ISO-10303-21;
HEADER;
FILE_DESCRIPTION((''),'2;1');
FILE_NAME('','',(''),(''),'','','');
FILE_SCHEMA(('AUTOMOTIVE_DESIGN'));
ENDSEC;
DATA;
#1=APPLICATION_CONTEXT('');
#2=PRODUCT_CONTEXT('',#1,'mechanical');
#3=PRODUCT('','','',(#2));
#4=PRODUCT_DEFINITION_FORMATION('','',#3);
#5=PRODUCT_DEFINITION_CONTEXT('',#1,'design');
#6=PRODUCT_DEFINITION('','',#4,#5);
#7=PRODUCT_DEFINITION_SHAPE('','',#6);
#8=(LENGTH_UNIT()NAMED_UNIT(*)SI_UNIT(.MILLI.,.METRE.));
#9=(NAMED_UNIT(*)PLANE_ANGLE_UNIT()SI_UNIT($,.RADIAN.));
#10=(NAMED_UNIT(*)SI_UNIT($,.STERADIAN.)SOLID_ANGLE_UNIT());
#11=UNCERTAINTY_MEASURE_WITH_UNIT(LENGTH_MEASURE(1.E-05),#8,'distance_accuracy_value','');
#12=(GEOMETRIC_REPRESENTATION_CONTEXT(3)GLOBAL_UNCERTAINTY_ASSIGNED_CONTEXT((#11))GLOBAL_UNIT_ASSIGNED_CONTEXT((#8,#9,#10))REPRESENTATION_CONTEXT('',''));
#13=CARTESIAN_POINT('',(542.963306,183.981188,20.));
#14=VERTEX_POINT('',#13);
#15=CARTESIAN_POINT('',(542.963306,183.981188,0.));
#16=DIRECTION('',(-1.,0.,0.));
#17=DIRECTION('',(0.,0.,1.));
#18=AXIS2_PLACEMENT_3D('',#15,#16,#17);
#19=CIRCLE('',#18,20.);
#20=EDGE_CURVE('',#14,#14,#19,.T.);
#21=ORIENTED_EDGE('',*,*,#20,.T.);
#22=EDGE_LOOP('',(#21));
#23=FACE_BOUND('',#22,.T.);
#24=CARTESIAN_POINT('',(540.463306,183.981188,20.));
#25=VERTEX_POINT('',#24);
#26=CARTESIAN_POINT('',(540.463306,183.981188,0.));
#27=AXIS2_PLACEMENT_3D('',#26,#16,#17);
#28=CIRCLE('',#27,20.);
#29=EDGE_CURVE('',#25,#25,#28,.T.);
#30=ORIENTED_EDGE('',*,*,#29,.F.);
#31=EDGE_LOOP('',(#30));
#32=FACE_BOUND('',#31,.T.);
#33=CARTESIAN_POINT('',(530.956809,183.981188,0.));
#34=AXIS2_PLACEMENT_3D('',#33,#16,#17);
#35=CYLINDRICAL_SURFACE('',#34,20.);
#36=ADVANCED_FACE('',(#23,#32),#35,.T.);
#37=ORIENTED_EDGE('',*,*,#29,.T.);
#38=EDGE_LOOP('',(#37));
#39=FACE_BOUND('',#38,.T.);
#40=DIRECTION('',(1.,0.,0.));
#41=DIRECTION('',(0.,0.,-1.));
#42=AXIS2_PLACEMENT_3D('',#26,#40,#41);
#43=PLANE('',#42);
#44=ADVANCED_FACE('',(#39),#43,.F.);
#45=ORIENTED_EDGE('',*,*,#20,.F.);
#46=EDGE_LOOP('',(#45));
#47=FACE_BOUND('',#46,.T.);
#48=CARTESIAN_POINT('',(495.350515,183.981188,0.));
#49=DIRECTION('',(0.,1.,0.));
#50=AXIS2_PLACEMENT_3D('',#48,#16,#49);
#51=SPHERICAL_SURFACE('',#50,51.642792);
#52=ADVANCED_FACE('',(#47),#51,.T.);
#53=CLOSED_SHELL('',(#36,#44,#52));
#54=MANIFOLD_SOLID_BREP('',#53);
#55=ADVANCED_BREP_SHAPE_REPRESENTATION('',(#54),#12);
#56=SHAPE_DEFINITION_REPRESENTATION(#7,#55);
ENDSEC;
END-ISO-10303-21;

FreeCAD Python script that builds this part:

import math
import FreeCAD as App
import Part
import Sketcher

V = App.Vector

doc = App.newDocument("Part")
body = doc.addObject("PartDesign::Body", "Body")

# Sketch on XY plane
sketch1 = body.newObject("Sketcher::SketchObject", "Sketch")
sketch1.AttachmentSupport = (doc.getObject("XY_Plane"), [""])
sketch1.MapMode = "FlatFace"
sketch1.addGeometry(Part.LineSegment(V(540.5, 204, 0), V(540.5, 184, 0)), False)
sketch1.addGeometry(Part.LineSegment(V(540.5, 184, 0), V(547, 184, 0)), False)
sketch1.addGeometry(Part.ArcOfCircle(Part.Circle(V(495.4, 184, 0), V(0, 0, 1), 51.6), math.radians(0), math.radians(23)), False)
sketch1.addGeometry(Part.LineSegment(V(543, 204, 0), V(540.5, 204, 0)), False)
sketch1.addGeometry(Part.LineSegment(V(495.4, 184, 0), V(547, 184, 0)), True)  # axis
sketch1.addConstraint(Sketcher.Constraint("Coincident", 0, 2, 1, 1))
sketch1.addConstraint(Sketcher.Constraint("Coincident", 1, 2, 2, 1))
sketch1.addConstraint(Sketcher.Constraint("Coincident", 2, 2, 3, 1))
sketch1.addConstraint(Sketcher.Constraint("Coincident", 3, 2, 0, 1))
sketch1.addConstraint(Sketcher.Constraint("Vertical", 0))
sketch1.addConstraint(Sketcher.Constraint("Horizontal", 1))
sketch1.addConstraint(Sketcher.Constraint("Horizontal", 3))
sketch1.addConstraint(Sketcher.Constraint("Horizontal", 4))
sketch1.addConstraint(Sketcher.Constraint("Coincident", 4, 1, 2, 3))
sketch1.addConstraint(Sketcher.Constraint("Coincident", 4, 2, 1, 2))
sketch1.addConstraint(Sketcher.Constraint("DistanceY", 0, 2, 0, 1, 20.0))
sketch1.addConstraint(Sketcher.Constraint("DistanceX", 3, 2, 3, 1, 2.5))
sketch1.addConstraint(Sketcher.Constraint("DistanceX", 1, 1, 1, 2, 6.53))
sketch1.addConstraint(Sketcher.Constraint("DistanceX", -1, 1, 2, 3, 495.350515))
sketch1.addConstraint(Sketcher.Constraint("DistanceY", -1, 1, 2, 3, 183.981188))
revolution = body.newObject("PartDesign::Revolution", "Revolution")
revolution.Profile = sketch1
revolution.ReferenceAxis = (sketch1, ["Axis0"])
revolution.Angle = 360

doc.recompute()
